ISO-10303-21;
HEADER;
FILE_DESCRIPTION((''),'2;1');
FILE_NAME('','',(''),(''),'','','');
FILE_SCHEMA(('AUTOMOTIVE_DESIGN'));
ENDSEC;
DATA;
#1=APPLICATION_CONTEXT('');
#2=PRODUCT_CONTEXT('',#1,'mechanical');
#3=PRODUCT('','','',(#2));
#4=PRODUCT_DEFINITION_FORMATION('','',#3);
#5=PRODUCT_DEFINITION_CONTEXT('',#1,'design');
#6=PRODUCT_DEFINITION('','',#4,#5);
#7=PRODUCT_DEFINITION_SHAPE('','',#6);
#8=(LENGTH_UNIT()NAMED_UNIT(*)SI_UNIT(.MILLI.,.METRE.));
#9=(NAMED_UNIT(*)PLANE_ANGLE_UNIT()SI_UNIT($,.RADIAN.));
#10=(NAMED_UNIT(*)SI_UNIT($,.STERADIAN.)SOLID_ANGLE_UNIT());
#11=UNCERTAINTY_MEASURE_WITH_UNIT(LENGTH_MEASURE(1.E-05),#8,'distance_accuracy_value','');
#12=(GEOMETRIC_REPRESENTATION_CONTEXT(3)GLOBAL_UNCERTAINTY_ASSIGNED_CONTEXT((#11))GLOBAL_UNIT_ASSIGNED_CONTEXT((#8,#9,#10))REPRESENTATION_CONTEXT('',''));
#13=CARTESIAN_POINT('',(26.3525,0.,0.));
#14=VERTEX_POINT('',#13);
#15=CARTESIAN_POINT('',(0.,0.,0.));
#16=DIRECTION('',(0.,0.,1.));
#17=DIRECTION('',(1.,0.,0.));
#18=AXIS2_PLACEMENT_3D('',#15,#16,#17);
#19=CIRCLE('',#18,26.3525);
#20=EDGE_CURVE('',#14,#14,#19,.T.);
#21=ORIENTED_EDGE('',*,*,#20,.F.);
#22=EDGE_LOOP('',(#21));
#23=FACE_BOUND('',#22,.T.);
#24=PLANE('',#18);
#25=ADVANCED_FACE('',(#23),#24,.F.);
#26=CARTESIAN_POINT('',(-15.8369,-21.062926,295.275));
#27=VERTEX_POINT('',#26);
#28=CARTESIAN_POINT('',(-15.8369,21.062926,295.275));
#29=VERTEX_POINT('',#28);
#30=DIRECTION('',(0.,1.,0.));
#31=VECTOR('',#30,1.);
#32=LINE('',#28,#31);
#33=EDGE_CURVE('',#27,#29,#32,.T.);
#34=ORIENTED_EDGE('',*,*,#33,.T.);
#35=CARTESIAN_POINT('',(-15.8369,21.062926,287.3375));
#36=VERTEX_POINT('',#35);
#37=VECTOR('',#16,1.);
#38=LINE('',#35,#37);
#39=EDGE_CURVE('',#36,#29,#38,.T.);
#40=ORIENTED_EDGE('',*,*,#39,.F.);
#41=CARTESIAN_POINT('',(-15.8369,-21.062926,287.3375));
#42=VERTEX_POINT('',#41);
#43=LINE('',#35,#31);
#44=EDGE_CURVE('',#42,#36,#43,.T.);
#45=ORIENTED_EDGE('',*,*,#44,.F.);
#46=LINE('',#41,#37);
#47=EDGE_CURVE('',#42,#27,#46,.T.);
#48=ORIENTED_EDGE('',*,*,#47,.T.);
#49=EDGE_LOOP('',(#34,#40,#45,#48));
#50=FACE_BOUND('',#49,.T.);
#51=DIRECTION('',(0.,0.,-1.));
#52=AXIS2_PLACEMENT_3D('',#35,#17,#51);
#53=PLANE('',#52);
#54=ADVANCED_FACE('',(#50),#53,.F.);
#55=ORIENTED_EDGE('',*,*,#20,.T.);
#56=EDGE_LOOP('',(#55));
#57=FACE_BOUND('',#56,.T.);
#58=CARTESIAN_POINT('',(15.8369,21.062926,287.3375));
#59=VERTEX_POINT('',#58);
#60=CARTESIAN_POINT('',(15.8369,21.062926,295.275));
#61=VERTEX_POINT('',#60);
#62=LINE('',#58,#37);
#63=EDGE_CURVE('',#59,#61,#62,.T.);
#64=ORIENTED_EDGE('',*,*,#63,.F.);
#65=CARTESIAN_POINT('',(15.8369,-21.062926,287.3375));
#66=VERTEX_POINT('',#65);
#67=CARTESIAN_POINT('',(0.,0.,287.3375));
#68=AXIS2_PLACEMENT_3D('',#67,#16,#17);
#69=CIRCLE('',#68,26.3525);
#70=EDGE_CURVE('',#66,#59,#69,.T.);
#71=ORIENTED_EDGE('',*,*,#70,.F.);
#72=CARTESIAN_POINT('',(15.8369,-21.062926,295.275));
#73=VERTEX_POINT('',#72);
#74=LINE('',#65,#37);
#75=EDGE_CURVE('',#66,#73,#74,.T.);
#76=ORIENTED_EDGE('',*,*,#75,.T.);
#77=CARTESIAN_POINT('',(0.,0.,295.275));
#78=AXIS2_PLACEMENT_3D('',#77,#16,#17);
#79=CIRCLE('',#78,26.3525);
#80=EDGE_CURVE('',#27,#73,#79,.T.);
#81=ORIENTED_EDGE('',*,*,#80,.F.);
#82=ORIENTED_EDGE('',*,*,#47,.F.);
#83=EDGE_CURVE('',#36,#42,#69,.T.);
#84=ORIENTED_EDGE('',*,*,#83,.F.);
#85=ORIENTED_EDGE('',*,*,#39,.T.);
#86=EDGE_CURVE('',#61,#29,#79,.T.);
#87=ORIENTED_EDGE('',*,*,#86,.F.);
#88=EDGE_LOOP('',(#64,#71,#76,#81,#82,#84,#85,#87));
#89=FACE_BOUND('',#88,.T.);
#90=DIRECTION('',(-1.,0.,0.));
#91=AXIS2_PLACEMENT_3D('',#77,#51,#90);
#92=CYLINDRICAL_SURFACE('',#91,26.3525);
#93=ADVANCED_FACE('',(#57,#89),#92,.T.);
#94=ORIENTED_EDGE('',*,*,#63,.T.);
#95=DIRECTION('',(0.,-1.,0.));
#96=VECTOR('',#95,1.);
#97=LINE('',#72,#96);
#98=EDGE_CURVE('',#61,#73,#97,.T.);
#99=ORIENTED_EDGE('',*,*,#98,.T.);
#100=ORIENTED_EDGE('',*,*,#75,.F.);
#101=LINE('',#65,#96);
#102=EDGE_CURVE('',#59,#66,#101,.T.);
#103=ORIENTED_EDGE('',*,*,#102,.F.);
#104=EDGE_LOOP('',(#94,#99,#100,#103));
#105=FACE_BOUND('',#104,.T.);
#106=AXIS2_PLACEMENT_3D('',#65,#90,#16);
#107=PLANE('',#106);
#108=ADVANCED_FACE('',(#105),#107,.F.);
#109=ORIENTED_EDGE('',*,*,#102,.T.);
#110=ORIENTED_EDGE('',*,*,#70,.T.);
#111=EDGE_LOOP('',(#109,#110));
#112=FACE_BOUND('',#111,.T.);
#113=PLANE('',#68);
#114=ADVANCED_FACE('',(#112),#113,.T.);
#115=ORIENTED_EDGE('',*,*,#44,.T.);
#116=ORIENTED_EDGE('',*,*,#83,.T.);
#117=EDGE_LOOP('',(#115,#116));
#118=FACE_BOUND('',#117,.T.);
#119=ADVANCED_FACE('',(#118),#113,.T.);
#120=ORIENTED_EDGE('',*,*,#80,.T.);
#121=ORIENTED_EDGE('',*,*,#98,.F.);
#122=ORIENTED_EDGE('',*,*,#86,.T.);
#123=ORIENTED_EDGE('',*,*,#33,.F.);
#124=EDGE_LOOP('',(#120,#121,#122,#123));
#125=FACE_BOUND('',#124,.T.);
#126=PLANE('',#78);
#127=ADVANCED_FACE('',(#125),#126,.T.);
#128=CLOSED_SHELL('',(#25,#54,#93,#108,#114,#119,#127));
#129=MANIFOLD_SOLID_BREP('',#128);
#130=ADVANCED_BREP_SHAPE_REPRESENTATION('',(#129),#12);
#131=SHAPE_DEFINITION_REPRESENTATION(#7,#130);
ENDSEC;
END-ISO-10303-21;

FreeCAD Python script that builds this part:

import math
import FreeCAD as App
import Part
import Sketcher

V = App.Vector
Q = App.Units.Quantity

doc = App.newDocument("Part")
body = doc.addObject("PartDesign::Body", "Body")

# Sketch on XY plane
sketch1 = body.newObject("Sketcher::SketchObject", "Sketch")
sketch1.AttachmentSupport = (doc.getObject("XY_Plane"), [""])
sketch1.MapMode = "FlatFace"
sketch1.addGeometry(Part.Circle(V(0, 0, 0), V(0, 0, 1), 26.3525), False)
sketch1.addConstraint([
    Sketcher.Constraint("Coincident", 0, 3, -1, 1),
    Sketcher.Constraint("Diameter", 0, Q("2.075 in")),
])
pad1 = body.newObject("PartDesign::Pad", "Pad")
pad1.Profile = sketch1
pad1.Length = Q("11.625 in")

# Sketch on XY plane
sketch2 = body.newObject("Sketcher::SketchObject", "Sketch001")
sketch2.AttachmentSupport = (doc.getObject("XY_Plane"), [""])
sketch2.MapMode = "FlatFace"
sketch2.AttachmentOffset = App.Placement(V(0, 0, 11.3125 * 25.4), App.Rotation())
sketch2.addGeometry([
    Part.LineSegment(V(-15.8369, -21.062926, 0), V(-15.8369, 21.062926, 0)),
    Part.ArcOfCircle(Part.Circle(V(0, 0, 0), V(0, 0, 1), 26.3525), math.radians(126.93896), math.radians(233.06104)),
    Part.LineSegment(V(15.8369, 21.062926, 0), V(15.8369, -21.062926, 0)),
    Part.ArcOfCircle(Part.Circle(V(0, 0, 0), V(0, 0, 1), 26.3525), math.radians(-53.06104), math.radians(53.06104)),
], False)
sketch2.addConstraint([
    Sketcher.Constraint("Coincident", 0, 1, 1, 2),
    Sketcher.Constraint("Coincident", 1, 1, 0, 2),
    Sketcher.Constraint("Coincident", 2, 1, 3, 2),
    Sketcher.Constraint("Coincident", 3, 1, 2, 2),
    Sketcher.Constraint("Vertical", 0),
    Sketcher.Constraint("Vertical", 2),
    Sketcher.Constraint("Coincident", 1, 3, -1, 1),
    Sketcher.Constraint("Coincident", 3, 3, -1, 1),
    Sketcher.Constraint("Equal", 1, 3),
    Sketcher.Constraint("Horizontal", 1, 1, 2, 1),
    Sketcher.Constraint("Radius", 1, Q("1.0375 in")),
    Sketcher.Constraint("DistanceX", 1, 1, 2, 1, Q("1.247 in")),
])
pocket1 = body.newObject("PartDesign::Pocket", "Pocket")
pocket1.Profile = sketch2
pocket1.Length = Q("0.3125 in")
pocket1.Reversed = True

doc.recompute()
